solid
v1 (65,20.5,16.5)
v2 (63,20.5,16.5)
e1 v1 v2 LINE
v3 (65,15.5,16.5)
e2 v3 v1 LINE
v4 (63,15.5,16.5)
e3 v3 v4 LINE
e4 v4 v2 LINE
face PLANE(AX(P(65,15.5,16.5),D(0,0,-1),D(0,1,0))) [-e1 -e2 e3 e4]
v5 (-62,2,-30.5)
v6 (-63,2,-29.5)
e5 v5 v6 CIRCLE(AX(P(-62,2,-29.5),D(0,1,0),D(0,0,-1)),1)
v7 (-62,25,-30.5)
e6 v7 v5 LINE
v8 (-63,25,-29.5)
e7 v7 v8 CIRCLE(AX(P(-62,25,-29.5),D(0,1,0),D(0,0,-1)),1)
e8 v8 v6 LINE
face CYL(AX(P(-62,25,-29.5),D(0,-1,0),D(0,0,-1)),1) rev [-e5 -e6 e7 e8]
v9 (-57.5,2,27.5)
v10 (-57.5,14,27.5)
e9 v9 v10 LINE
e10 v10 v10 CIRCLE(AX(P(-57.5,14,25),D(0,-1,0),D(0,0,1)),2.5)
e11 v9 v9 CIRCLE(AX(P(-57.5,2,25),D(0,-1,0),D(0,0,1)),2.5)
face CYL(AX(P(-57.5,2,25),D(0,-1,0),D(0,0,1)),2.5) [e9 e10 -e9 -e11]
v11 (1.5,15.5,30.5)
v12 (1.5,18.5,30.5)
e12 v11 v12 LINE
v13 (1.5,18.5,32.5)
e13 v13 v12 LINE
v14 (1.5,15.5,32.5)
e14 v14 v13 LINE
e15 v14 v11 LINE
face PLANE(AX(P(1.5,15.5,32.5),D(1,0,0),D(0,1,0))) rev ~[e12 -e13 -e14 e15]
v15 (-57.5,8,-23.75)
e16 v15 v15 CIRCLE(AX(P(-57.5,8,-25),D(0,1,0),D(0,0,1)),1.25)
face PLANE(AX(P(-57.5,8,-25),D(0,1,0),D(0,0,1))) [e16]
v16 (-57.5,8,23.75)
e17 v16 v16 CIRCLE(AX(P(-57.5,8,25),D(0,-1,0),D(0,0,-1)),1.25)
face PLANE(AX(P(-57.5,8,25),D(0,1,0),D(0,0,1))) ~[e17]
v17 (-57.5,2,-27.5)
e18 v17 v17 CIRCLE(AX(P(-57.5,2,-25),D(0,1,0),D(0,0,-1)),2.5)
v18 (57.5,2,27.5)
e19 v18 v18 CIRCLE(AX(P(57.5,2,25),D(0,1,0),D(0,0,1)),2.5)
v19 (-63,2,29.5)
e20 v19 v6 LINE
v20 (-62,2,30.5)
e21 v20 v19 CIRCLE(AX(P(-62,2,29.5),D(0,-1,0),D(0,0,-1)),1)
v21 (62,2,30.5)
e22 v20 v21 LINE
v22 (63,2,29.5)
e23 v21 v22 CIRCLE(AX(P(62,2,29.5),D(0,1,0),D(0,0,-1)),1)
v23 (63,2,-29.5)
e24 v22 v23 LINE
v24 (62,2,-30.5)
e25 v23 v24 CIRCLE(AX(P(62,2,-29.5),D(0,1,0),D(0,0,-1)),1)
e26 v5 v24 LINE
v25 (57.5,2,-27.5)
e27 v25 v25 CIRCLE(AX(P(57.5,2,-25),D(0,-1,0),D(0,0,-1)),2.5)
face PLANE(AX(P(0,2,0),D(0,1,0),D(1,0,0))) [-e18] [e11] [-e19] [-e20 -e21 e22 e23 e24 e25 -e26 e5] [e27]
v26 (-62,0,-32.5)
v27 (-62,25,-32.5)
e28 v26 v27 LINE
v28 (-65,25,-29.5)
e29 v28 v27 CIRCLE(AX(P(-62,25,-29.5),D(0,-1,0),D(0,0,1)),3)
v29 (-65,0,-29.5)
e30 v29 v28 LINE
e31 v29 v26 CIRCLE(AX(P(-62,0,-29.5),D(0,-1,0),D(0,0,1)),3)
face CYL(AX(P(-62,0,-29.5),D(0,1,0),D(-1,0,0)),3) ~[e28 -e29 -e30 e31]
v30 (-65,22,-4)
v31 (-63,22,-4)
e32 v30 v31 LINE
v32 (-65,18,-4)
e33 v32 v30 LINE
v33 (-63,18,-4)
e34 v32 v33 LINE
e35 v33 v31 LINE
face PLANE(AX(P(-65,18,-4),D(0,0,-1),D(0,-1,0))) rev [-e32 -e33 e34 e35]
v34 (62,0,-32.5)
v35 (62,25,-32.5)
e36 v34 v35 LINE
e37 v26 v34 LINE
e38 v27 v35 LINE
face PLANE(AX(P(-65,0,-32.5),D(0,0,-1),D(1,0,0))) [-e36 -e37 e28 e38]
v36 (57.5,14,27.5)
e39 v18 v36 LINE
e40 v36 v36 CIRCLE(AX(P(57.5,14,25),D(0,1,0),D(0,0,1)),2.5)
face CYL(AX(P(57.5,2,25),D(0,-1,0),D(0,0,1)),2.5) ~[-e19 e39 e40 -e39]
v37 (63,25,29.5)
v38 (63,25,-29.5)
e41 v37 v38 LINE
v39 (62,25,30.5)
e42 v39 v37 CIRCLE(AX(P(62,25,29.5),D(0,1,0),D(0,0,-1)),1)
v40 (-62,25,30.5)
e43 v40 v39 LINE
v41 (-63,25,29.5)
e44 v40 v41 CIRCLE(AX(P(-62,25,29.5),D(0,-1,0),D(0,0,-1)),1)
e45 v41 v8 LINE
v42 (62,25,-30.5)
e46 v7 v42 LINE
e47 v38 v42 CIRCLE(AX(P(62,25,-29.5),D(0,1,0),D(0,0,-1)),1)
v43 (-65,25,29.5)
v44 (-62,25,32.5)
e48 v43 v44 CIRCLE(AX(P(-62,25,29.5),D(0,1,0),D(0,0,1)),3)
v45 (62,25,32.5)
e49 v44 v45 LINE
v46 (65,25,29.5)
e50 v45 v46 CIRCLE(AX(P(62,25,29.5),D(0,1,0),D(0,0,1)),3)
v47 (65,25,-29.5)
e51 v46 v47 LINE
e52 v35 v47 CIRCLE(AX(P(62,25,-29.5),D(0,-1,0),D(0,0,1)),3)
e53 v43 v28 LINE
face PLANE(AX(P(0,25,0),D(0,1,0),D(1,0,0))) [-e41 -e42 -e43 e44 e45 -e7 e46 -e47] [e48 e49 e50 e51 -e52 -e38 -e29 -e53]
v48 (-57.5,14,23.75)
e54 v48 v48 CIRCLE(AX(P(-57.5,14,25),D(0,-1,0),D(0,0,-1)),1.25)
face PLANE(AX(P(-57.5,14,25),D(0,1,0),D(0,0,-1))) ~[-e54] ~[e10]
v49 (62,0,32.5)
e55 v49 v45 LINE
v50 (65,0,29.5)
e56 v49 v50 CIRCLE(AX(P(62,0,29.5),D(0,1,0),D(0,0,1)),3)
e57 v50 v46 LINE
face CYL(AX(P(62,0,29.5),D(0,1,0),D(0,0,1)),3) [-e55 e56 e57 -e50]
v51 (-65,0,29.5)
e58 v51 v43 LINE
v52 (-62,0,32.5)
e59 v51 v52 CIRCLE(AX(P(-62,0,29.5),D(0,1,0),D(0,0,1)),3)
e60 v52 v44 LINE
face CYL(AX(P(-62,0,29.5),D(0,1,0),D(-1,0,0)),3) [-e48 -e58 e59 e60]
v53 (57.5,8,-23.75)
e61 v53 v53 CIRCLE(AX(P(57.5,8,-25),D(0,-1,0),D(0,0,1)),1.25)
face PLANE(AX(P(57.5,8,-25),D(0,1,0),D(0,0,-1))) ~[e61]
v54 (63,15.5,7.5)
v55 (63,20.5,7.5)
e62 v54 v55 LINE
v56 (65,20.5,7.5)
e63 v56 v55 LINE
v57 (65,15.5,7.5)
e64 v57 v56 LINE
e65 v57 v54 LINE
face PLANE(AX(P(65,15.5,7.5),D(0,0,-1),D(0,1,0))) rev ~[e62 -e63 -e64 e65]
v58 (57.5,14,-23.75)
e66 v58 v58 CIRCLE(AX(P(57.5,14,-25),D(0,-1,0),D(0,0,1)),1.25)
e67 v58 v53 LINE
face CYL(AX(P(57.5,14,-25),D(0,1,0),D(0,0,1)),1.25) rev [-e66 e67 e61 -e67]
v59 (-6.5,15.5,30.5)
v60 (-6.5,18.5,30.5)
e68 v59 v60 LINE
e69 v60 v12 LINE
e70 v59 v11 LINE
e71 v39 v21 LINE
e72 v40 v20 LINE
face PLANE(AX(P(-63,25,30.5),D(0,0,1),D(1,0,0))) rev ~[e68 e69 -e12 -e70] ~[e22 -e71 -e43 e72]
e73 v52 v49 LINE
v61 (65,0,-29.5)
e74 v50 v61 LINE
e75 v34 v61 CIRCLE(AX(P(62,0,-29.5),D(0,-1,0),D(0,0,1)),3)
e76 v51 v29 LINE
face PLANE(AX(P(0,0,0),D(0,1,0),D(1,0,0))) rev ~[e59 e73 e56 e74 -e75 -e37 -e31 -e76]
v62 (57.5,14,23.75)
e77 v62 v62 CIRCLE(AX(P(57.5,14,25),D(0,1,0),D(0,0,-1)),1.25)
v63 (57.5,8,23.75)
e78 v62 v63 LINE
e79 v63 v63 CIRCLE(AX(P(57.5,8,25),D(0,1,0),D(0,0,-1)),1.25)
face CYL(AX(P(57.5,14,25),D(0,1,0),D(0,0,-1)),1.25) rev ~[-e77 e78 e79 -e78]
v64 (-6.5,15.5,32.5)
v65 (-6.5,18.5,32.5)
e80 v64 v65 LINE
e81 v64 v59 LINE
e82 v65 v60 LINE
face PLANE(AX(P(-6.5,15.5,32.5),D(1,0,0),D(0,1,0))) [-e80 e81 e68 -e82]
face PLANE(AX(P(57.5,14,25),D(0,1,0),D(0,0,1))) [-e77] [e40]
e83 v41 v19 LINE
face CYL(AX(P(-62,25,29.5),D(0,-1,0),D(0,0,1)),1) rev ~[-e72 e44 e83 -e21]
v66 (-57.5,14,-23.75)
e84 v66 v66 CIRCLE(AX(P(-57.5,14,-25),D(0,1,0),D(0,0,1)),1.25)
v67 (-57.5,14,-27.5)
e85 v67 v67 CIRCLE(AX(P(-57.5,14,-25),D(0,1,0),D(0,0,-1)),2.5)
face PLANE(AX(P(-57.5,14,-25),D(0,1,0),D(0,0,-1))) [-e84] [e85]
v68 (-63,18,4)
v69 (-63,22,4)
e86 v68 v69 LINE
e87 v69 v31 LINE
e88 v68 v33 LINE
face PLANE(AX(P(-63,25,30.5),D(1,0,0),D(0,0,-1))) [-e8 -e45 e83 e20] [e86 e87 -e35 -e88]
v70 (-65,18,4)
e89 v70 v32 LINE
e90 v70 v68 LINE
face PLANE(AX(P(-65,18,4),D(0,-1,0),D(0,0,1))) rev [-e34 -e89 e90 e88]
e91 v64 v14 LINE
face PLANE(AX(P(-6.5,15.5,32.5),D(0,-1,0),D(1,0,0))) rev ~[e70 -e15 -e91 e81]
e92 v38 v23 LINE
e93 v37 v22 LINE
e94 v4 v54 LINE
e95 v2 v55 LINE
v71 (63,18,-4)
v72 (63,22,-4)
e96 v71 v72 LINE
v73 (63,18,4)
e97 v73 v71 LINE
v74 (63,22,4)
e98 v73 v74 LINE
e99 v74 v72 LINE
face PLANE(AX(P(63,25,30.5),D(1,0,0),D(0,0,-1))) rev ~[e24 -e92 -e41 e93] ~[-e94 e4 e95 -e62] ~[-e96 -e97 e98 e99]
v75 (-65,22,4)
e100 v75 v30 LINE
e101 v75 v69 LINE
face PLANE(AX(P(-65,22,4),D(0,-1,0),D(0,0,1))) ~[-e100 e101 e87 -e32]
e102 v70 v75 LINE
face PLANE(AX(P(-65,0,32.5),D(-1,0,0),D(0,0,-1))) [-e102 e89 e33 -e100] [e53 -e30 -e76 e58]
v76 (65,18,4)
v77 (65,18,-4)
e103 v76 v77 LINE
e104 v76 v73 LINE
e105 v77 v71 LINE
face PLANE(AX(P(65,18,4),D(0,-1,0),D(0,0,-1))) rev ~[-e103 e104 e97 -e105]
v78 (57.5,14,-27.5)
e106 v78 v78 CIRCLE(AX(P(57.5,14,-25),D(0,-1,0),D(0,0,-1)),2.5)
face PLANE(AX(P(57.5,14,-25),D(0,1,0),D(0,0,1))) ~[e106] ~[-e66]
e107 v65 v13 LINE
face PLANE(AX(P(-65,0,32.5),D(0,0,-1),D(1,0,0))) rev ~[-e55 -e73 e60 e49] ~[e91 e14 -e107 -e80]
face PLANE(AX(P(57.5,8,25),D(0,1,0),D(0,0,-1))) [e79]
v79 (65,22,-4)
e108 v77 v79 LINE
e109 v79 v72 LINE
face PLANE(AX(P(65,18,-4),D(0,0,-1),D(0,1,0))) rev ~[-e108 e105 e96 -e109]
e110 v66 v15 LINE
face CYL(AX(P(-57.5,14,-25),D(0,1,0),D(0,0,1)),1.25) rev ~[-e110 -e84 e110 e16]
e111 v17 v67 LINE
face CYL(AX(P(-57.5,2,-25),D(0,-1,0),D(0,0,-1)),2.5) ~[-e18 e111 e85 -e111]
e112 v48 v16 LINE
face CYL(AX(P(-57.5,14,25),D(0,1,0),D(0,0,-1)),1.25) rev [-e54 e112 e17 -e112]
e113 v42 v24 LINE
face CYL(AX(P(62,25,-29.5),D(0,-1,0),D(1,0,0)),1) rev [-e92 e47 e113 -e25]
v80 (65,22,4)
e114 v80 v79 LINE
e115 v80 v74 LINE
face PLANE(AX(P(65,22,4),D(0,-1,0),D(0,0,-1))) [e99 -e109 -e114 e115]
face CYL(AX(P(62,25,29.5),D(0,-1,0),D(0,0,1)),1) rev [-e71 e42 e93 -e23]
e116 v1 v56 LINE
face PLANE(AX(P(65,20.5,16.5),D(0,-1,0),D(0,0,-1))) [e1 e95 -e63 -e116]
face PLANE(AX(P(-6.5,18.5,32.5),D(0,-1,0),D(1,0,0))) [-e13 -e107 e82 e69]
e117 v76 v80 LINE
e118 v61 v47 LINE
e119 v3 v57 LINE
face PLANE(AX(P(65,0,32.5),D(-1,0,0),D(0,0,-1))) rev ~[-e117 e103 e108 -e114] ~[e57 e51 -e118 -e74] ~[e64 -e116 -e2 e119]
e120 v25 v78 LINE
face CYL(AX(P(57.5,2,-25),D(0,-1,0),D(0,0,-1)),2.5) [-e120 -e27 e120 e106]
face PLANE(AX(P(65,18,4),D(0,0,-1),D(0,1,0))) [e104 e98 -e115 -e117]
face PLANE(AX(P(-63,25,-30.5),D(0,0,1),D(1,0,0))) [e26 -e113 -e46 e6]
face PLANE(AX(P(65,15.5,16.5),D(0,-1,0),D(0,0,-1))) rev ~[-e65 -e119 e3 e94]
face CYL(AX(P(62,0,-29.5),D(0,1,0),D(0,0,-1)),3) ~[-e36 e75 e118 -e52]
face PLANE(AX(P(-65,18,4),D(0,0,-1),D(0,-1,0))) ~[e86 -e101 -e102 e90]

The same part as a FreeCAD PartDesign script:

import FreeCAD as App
import Part
import Sketcher
Q = App.Units.Quantity


def edges_at(feature, points):
    """Names of the edges that pass closest to the given points."""
    edges = feature.Shape.Edges
    near = lambda p: min(range(len(edges)), key=lambda i: edges[i].distToShape(Part.Vertex(*p))[0])
    return sorted({f"Edge{near(p) + 1}" for p in points})

doc = App.newDocument("Part")
body = doc.addObject("PartDesign::Body", "Body")

# Sketch on XZ plane
sketch1 = doc.addObject("Sketcher::SketchObject", "Sketch")
body.addObject(sketch1)
sketch1.AttachmentSupport = (doc.XZ_Plane, [""])
sketch1.MapMode = "FlatFace"
sketch1.addGeometry(Part.LineSegment(App.Vector(-65, -32.5, 0), App.Vector(-65, 32.5, 0)), False)
sketch1.addGeometry(Part.LineSegment(App.Vector(-65, 32.5, 0), App.Vector(65, 32.5, 0)), False)
sketch1.addGeometry(Part.LineSegment(App.Vector(65, 32.5, 0), App.Vector(65, -32.5, 0)), False)
sketch1.addGeometry(Part.LineSegment(App.Vector(65, -32.5, 0), App.Vector(-65, -32.5, 0)), False)
sketch1.addConstraint(Sketcher.Constraint("Coincident", 0, 2, 1, 1))
sketch1.addConstraint(Sketcher.Constraint("Coincident", 1, 2, 2, 1))
sketch1.addConstraint(Sketcher.Constraint("Coincident", 2, 2, 3, 1))
sketch1.addConstraint(Sketcher.Constraint("Coincident", 3, 2, 0, 1))
sketch1.addConstraint(Sketcher.Constraint("Vertical", 0))
sketch1.addConstraint(Sketcher.Constraint("Horizontal", 1))
sketch1.addConstraint(Sketcher.Constraint("Vertical", 2))
sketch1.addConstraint(Sketcher.Constraint("Horizontal", 3))
sketch1.addConstraint(Sketcher.Constraint("Symmetric", 0, 2, 2, 2, -1, 1))
sketch1.addConstraint(Sketcher.Constraint("DistanceX", 1, 1, 1, 2, Q("130 mm")))
sketch1.addConstraint(Sketcher.Constraint("DistanceY", 0, 1, 0, 2, Q("65 mm")))
pad1 = doc.addObject("PartDesign::Pad", "Pad")
body.addObject(pad1)
pad1.Profile = sketch1
pad1.Length = 25
pad1.Reversed = True

# Sketch on XZ plane
sketch2 = doc.addObject("Sketcher::SketchObject", "Sketch001")
body.addObject(sketch2)
sketch2.AttachmentSupport = (doc.XZ_Plane, [""])
sketch2.MapMode = "FlatFace"
sketch2.AttachmentOffset = App.Placement(App.Vector(0, 0, -25), App.Rotation())
sketch2.addGeometry(Part.LineSegment(App.Vector(-63, -30.5, 0), App.Vector(-63, 30.5, 0)), False)
sketch2.addGeometry(Part.LineSegment(App.Vector(-63, 30.5, 0), App.Vector(63, 30.5, 0)), False)
sketch2.addGeometry(Part.LineSegment(App.Vector(63, 30.5, 0), App.Vector(63, -30.5, 0)), False)
sketch2.addGeometry(Part.LineSegment(App.Vector(63, -30.5, 0), App.Vector(-63, -30.5, 0)), False)
sketch2.addConstraint(Sketcher.Constraint("Coincident", 0, 2, 1, 1))
sketch2.addConstraint(Sketcher.Constraint("Coincident", 1, 2, 2, 1))
sketch2.addConstraint(Sketcher.Constraint("Coincident", 2, 2, 3, 1))
sketch2.addConstraint(Sketcher.Constraint("Coincident", 3, 2, 0, 1))
sketch2.addConstraint(Sketcher.Constraint("Vertical", 0))
sketch2.addConstraint(Sketcher.Constraint("Horizontal", 1))
sketch2.addConstraint(Sketcher.Constraint("Vertical", 2))
sketch2.addConstraint(Sketcher.Constraint("Horizontal", 3))
sketch2.addConstraint(Sketcher.Constraint("Symmetric", 0, 2, 2, 2, -1, 1))
sketch2.addConstraint(Sketcher.Constraint("DistanceX", 1, 1, 1, 2, Q("126 mm")))
sketch2.addConstraint(Sketcher.Constraint("DistanceY", 0, 1, 0, 2, Q("61 mm")))
pocket1 = doc.addObject("PartDesign::Pocket", "Pocket")
body.addObject(pocket1)
pocket1.Profile = sketch2
pocket1.Length = 23
pocket1.Reversed = True

# Sketch on XZ plane
sketch3 = doc.addObject("Sketcher::SketchObject", "Sketch002")
body.addObject(sketch3)
sketch3.AttachmentSupport = (doc.XZ_Plane, [""])
sketch3.MapMode = "FlatFace"
sketch3.AttachmentOffset = App.Placement(App.Vector(0, 0, -2), App.Rotation())
sketch3.addGeometry(Part.Circle(App.Vector(-57.5, -25, 0), App.Vector(0, 0, 1), 2.5), False)
sketch3.addConstraint(Sketcher.Constraint("Diameter", 0, Q("5 mm")))
sketch3.addConstraint(Sketcher.Constraint("DistanceY", 0, 3, -1, 1, Q("25 mm")))
sketch3.addConstraint(Sketcher.Constraint("DistanceX", 0, 3, -1, 1, Q("57.5 mm")))
pad2 = doc.addObject("PartDesign::Pad", "Pad001")
body.addObject(pad2)
pad2.Profile = sketch3
pad2.Length = 12
pad2.Reversed = True

# Sketch on YZ plane
sketch4 = doc.addObject("Sketcher::SketchObject", "Sketch003")
body.addObject(sketch4)
sketch4.AttachmentSupport = (doc.YZ_Plane, [""])
sketch4.MapMode = "FlatFace"
sketch4.AttachmentOffset = App.Placement(App.Vector(0, 0, 65), App.Rotation())
sketch4.addGeometry(Part.LineSegment(App.Vector(22, 4, 0), App.Vector(18, 4, 0)), False)
sketch4.addGeometry(Part.LineSegment(App.Vector(18, 4, 0), App.Vector(18, -4, 0)), False)
sketch4.addGeometry(Part.LineSegment(App.Vector(18, -4, 0), App.Vector(22, -4, 0)), False)
sketch4.addGeometry(Part.LineSegment(App.Vector(22, -4, 0), App.Vector(22, 4, 0)), False)
sketch4.addConstraint(Sketcher.Constraint("Coincident", 0, 2, 1, 1))
sketch4.addConstraint(Sketcher.Constraint("Coincident", 1, 2, 2, 1))
sketch4.addConstraint(Sketcher.Constraint("Coincident", 2, 2, 3, 1))
sketch4.addConstraint(Sketcher.Constraint("Coincident", 3, 2, 0, 1))
sketch4.addConstraint(Sketcher.Constraint("Horizontal", 0))
sketch4.addConstraint(Sketcher.Constraint("Vertical", 1))
sketch4.addConstraint(Sketcher.Constraint("Horizontal", 2))
sketch4.addConstraint(Sketcher.Constraint("Vertical", 3))
sketch4.addConstraint(Sketcher.Constraint("DistanceX", 0, 2, 0, 1, Q("4 mm")))
sketch4.addConstraint(Sketcher.Constraint("DistanceY", 1, 2, 1, 1, Q("8 mm")))
sketch4.addConstraint(Sketcher.Constraint("DistanceX", -1, 1, 0, 2, Q("18 mm")))
sketch4.addConstraint(Sketcher.Constraint("DistanceY", -1, 1, 0, 2, Q("4 mm")))
pocket2 = doc.addObject("PartDesign::Pocket", "Pocket001")
body.addObject(pocket2)
pocket2.Profile = sketch4
pocket2.Length = 2
doc.recompute()

mirrored = doc.addObject("PartDesign::Mirrored", "Mirrored")
body.addObject(mirrored)
mirrored.Originals = [pocket2]
mirrored.MirrorPlane = (doc.YZ_Plane, [""])
body.Tip = mirrored

# Sketch on XY plane
sketch5 = doc.addObject("Sketcher::SketchObject", "Sketch004")
body.addObject(sketch5)
sketch5.AttachmentSupport = (doc.XY_Plane, [""])
sketch5.MapMode = "FlatFace"
sketch5.AttachmentOffset = App.Placement(App.Vector(0, 0, 32.5), App.Rotation())
sketch5.addGeometry(Part.LineSegment(App.Vector(-6.5, 18.5, 0), App.Vector(-6.5, 15.5, 0)), False)
sketch5.addGeometry(Part.LineSegment(App.Vector(-6.5, 15.5, 0), App.Vector(1.5, 15.5, 0)), False)
sketch5.addGeometry(Part.LineSegment(App.Vector(1.5, 15.5, 0), App.Vector(1.5, 18.5, 0)), False)
sketch5.addGeometry(Part.LineSegment(App.Vector(1.5, 18.5, 0), App.Vector(-6.5, 18.5, 0)), False)
sketch5.addConstraint(Sketcher.Constraint("Coincident", 0, 2, 1, 1))
sketch5.addConstraint(Sketcher.Constraint("Coincident", 1, 2, 2, 1))
sketch5.addConstraint(Sketcher.Constraint("Coincident", 2, 2, 3, 1))
sketch5.addConstraint(Sketcher.Constraint("Coincident", 3, 2, 0, 1))
sketch5.addConstraint(Sketcher.Constraint("Vertical", 0))
sketch5.addConstraint(Sketcher.Constraint("Horizontal", 1))
sketch5.addConstraint(Sketcher.Constraint("Vertical", 2))
sketch5.addConstraint(Sketcher.Constraint("Horizontal", 3))
sketch5.addConstraint(Sketcher.Constraint("DistanceX", 1, 1, 1, 2, Q("8 mm")))
sketch5.addConstraint(Sketcher.Constraint("DistanceY", 0, 2, 0, 1, Q("3 mm")))
sketch5.addConstraint(Sketcher.Constraint("DistanceX", 0, 2, -1, 1, Q("6.5 mm")))
sketch5.addConstraint(Sketcher.Constraint("DistanceY", -1, 1, 0, 2, Q("15.5 mm")))
pocket3 = doc.addObject("PartDesign::Pocket", "Pocket002")
body.addObject(pocket3)
pocket3.Profile = sketch5
pocket3.Length = 2

# Sketch on YZ plane
sketch6 = doc.addObject("Sketcher::SketchObject", "Sketch005")
body.addObject(sketch6)
sketch6.AttachmentSupport = (doc.YZ_Plane, [""])
sketch6.MapMode = "FlatFace"
sketch6.AttachmentOffset = App.Placement(App.Vector(0, 0, 65), App.Rotation())
sketch6.addGeometry(Part.LineSegment(App.Vector(20.5, 16.5, 0), App.Vector(15.5, 16.5, 0)), False)
sketch6.addGeometry(Part.LineSegment(App.Vector(15.5, 16.5, 0), App.Vector(15.5, 7.5, 0)), False)
sketch6.addGeometry(Part.LineSegment(App.Vector(15.5, 7.5, 0), App.Vector(20.5, 7.5, 0)), False)
sketch6.addGeometry(Part.LineSegment(App.Vector(20.5, 7.5, 0), App.Vector(20.5, 16.5, 0)), False)
sketch6.addConstraint(Sketcher.Constraint("Coincident", 0, 2, 1, 1))
sketch6.addConstraint(Sketcher.Constraint("Coincident", 1, 2, 2, 1))
sketch6.addConstraint(Sketcher.Constraint("Coincident", 2, 2, 3, 1))
sketch6.addConstraint(Sketcher.Constraint("Coincident", 3, 2, 0, 1))
sketch6.addConstraint(Sketcher.Constraint("Horizontal", 0))
sketch6.addConstraint(Sketcher.Constraint("Vertical", 1))
sketch6.addConstraint(Sketcher.Constraint("Horizontal", 2))
sketch6.addConstraint(Sketcher.Constraint("Vertical", 3))
sketch6.addConstraint(Sketcher.Constraint("DistanceX", 0, 2, 0, 1, Q("5 mm")))
sketch6.addConstraint(Sketcher.Constraint("DistanceY", 1, 2, 1, 1, Q("9 mm")))
sketch6.addConstraint(Sketcher.Constraint("DistanceX", -1, 1, 0, 2, Q("15.5 mm")))
sketch6.addConstraint(Sketcher.Constraint("DistanceY", -1, 1, 0, 2, Q("16.5 mm")))
pocket4 = doc.addObject("PartDesign::Pocket", "Pocket003")
body.addObject(pocket4)
pocket4.Profile = sketch6
pocket4.Length = 2

# Sketch on XZ plane
sketch7 = doc.addObject("Sketcher::SketchObject", "Sketch006")
body.addObject(sketch7)
sketch7.AttachmentSupport = (doc.XZ_Plane, [""])
sketch7.MapMode = "FlatFace"
sketch7.AttachmentOffset = App.Placement(App.Vector(0, 0, -14), App.Rotation())
sketch7.addGeometry(Part.Circle(App.Vector(-57.5, -25, 0), App.Vector(0, 0, 1), 1.25), False)
sketch7.addConstraint(Sketcher.Constraint("Diameter", 0, Q("2.5 mm")))
sketch7.addConstraint(Sketcher.Constraint("DistanceY", 0, 3, -1, 1, Q("25 mm")))
sketch7.addConstraint(Sketcher.Constraint("DistanceX", 0, 3, -1, 1, Q("57.5 mm")))
pocket5 = doc.addObject("PartDesign::Pocket", "Pocket004")
body.addObject(pocket5)
pocket5.Profile = sketch7
pocket5.Length = 6
pocket5.Reversed = True
doc.recompute()

mirrored2 = doc.addObject("PartDesign::Mirrored", "Mirrored001")
body.addObject(mirrored2)
mirrored2.Originals = [pad2, pocket5]
mirrored2.MirrorPlane = (doc.YZ_Plane, [""])
body.Tip = mirrored2
doc.recompute()

mirrored3 = doc.addObject("PartDesign::Mirrored", "Mirrored002")
body.addObject(mirrored3)
mirrored3.Originals = [pad2, pocket5]
mirrored3.MirrorPlane = (doc.XY_Plane, [""])
body.Tip = mirrored3

# Sketch on XZ plane
sketch8 = doc.addObject("Sketcher::SketchObject", "Sketch007")
body.addObject(sketch8)
sketch8.AttachmentSupport = (doc.XZ_Plane, [""])
sketch8.MapMode = "FlatFace"
sketch8.AttachmentOffset = App.Placement(App.Vector(0, 0, -2), App.Rotation())
sketch8.addGeometry(Part.Circle(App.Vector(57.5, 25, 0), App.Vector(0, 0, 1), 2.5), False)
sketch8.addConstraint(Sketcher.Constraint("Diameter", 0, Q("5 mm")))
sketch8.addConstraint(Sketcher.Constraint("DistanceY", -1, 1, 0, 3, Q("25 mm")))
sketch8.addConstraint(Sketcher.Constraint("DistanceX", -1, 1, 0, 3, Q("57.5 mm")))
pad3 = doc.addObject("PartDesign::Pad", "Pad002")
body.addObject(pad3)
pad3.Profile = sketch8
pad3.Length = 12
pad3.Reversed = True

# Sketch on XZ plane
sketch9 = doc.addObject("Sketcher::SketchObject", "Sketch008")
body.addObject(sketch9)
sketch9.AttachmentSupport = (doc.XZ_Plane, [""])
sketch9.MapMode = "FlatFace"
sketch9.AttachmentOffset = App.Placement(App.Vector(0, 0, -14), App.Rotation())
sketch9.addGeometry(Part.Circle(App.Vector(57.5, 25, 0), App.Vector(0, 0, 1), 1.25), False)
sketch9.addConstraint(Sketcher.Constraint("Diameter", 0, Q("2.5 mm")))
sketch9.addConstraint(Sketcher.Constraint("DistanceY", -1, 1, 0, 3, Q("25 mm")))
sketch9.addConstraint(Sketcher.Constraint("DistanceX", -1, 1, 0, 3, Q("57.5 mm")))
pocket6 = doc.addObject("PartDesign::Pocket", "Pocket005")
body.addObject(pocket6)
pocket6.Profile = sketch9
pocket6.Length = 6
pocket6.Reversed = True
doc.recompute()

fillet = doc.addObject("PartDesign::Fillet", "Fillet")
body.addObject(fillet)
fillet.Base = (pocket6, edges_at(pocket6, [
    (63, 13.5, -30.5),
    (63, 13.5, 30.5),
    (-63, 13.5, 30.5),
    (-63, 13.5, -30.5),
]))
fillet.Radius = 1
doc.recompute()

fillet2 = doc.addObject("PartDesign::Fillet", "Fillet001")
body.addObject(fillet2)
fillet2.Base = (fillet, edges_at(fillet, [
    (65, 12.5, 32.5),
    (-65, 12.5, 32.5),
    (-65, 12.5, -32.5),
    (65, 12.5, -32.5),
]))
fillet2.Radius = 3

doc.recompute()
